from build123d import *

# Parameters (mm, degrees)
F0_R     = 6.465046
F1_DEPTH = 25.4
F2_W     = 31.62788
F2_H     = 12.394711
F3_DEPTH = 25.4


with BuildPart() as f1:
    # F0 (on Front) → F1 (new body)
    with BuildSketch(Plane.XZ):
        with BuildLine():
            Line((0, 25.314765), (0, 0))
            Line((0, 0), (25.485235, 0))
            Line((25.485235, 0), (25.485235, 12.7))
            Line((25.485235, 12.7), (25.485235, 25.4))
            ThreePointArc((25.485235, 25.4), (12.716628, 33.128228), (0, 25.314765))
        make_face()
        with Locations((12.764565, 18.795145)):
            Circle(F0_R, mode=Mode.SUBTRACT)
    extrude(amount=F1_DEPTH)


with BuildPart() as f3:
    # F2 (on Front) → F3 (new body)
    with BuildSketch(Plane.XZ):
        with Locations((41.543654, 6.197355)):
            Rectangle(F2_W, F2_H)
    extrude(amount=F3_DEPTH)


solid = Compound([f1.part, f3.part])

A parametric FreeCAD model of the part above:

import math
import FreeCAD as App
import Part
import Sketcher
Q = App.Units.Quantity

doc = App.newDocument("Part")
body = doc.addObject("PartDesign::Body", "Body")

# Sketch on XZ plane
sketch1 = body.newObject("Sketcher::SketchObject", "Sketch")
sketch1.AttachmentSupport = (doc.getObject("XZ_Plane"), [""])
sketch1.MapMode = "FlatFace"
sketch1.addGeometry([
    Part.LineSegment(App.Vector(0, 25.314765, 0), App.Vector(0, 0, 0)),  # 0
    Part.LineSegment(App.Vector(0, 0, 0), App.Vector(25.485235, 0, 0)),  # 1
    Part.LineSegment(App.Vector(25.485235, 0, 0), App.Vector(25.485235, 25.4, 0)),  # 2
    Part.ArcOfCircle(Part.Circle(App.Vector(12.764565, 18.795145, 0), App.Vector(0, 0, 1), 14.333163), math.radians(27.439342), math.radians(152.943906)),  # 3
    Part.Circle(App.Vector(12.764565, 18.795145, 0), App.Vector(0, 0, 1), 6.465046),  # 4
], False)
sketch1.addConstraint([
    Sketcher.Constraint("Coincident", 0, 2, 1, 1),
    Sketcher.Constraint("Coincident", 1, 2, 2, 1),
    Sketcher.Constraint("Coincident", 2, 2, 3, 1),
    Sketcher.Constraint("Coincident", 3, 2, 0, 1),
    Sketcher.Constraint("Vertical", 0),
    Sketcher.Constraint("Horizontal", 1),
    Sketcher.Constraint("Vertical", 2),
    Sketcher.Constraint("Coincident", 0, 2, -1, 1),
    Sketcher.Constraint("Coincident", 4, 3, 3, 3),
    Sketcher.Constraint("DistanceY", 2, 1, 2, 2, Q("1 in")),
    Sketcher.Constraint("Diameter", 4, 12.930092),
    Sketcher.Constraint("Radius", 3, 14.333163),
    Sketcher.Constraint("DistanceX", 1, 1, 1, 2, 25.485235),
    Sketcher.Constraint("DistanceY", 0, 2, 0, 1, 25.314765),
])
pad1 = body.newObject("PartDesign::Pad", "Pad")
pad1.Profile = sketch1
pad1.Length = Q("1 in")
body2 = doc.addObject("PartDesign::Body", "Body001")

# Sketch on XZ plane
sketch2 = body2.newObject("Sketcher::SketchObject", "Sketch001")
sketch2.AttachmentSupport = (doc.getObject("XZ_Plane001"), [""])
sketch2.MapMode = "FlatFace"
sketch2.addGeometry([
    Part.LineSegment(App.Vector(25.729714, 12.394711, 0), App.Vector(25.729714, 0, 0)),
    Part.LineSegment(App.Vector(25.729714, 0, 0), App.Vector(57.357594, 0, 0)),
    Part.LineSegment(App.Vector(57.357594, 0, 0), App.Vector(57.357594, 12.394711, 0)),
    Part.LineSegment(App.Vector(57.357594, 12.394711, 0), App.Vector(25.729714, 12.394711, 0)),
], False)
sketch2.addConstraint([
    Sketcher.Constraint("Coincident", 0, 2, 1, 1),
    Sketcher.Constraint("Coincident", 1, 2, 2, 1),
    Sketcher.Constraint("Coincident", 2, 2, 3, 1),
    Sketcher.Constraint("Coincident", 3, 2, 0, 1),
    Sketcher.Constraint("Vertical", 0),
    Sketcher.Constraint("Horizontal", 1),
    Sketcher.Constraint("Vertical", 2),
    Sketcher.Constraint("Horizontal", 3),
    Sketcher.Constraint("PointOnObject", 0, 2, -1),
    Sketcher.Constraint("DistanceX", 1, 1, 1, 2, 31.62788),
    Sketcher.Constraint("DistanceY", 0, 2, 0, 1, 12.394711),
    Sketcher.Constraint("DistanceX", -1, 1, 0, 2, 25.729714),
])
pad2 = body2.newObject("PartDesign::Pad", "Pad001")
pad2.Profile = sketch2
pad2.Length = Q("1 in")

doc.recompute()
